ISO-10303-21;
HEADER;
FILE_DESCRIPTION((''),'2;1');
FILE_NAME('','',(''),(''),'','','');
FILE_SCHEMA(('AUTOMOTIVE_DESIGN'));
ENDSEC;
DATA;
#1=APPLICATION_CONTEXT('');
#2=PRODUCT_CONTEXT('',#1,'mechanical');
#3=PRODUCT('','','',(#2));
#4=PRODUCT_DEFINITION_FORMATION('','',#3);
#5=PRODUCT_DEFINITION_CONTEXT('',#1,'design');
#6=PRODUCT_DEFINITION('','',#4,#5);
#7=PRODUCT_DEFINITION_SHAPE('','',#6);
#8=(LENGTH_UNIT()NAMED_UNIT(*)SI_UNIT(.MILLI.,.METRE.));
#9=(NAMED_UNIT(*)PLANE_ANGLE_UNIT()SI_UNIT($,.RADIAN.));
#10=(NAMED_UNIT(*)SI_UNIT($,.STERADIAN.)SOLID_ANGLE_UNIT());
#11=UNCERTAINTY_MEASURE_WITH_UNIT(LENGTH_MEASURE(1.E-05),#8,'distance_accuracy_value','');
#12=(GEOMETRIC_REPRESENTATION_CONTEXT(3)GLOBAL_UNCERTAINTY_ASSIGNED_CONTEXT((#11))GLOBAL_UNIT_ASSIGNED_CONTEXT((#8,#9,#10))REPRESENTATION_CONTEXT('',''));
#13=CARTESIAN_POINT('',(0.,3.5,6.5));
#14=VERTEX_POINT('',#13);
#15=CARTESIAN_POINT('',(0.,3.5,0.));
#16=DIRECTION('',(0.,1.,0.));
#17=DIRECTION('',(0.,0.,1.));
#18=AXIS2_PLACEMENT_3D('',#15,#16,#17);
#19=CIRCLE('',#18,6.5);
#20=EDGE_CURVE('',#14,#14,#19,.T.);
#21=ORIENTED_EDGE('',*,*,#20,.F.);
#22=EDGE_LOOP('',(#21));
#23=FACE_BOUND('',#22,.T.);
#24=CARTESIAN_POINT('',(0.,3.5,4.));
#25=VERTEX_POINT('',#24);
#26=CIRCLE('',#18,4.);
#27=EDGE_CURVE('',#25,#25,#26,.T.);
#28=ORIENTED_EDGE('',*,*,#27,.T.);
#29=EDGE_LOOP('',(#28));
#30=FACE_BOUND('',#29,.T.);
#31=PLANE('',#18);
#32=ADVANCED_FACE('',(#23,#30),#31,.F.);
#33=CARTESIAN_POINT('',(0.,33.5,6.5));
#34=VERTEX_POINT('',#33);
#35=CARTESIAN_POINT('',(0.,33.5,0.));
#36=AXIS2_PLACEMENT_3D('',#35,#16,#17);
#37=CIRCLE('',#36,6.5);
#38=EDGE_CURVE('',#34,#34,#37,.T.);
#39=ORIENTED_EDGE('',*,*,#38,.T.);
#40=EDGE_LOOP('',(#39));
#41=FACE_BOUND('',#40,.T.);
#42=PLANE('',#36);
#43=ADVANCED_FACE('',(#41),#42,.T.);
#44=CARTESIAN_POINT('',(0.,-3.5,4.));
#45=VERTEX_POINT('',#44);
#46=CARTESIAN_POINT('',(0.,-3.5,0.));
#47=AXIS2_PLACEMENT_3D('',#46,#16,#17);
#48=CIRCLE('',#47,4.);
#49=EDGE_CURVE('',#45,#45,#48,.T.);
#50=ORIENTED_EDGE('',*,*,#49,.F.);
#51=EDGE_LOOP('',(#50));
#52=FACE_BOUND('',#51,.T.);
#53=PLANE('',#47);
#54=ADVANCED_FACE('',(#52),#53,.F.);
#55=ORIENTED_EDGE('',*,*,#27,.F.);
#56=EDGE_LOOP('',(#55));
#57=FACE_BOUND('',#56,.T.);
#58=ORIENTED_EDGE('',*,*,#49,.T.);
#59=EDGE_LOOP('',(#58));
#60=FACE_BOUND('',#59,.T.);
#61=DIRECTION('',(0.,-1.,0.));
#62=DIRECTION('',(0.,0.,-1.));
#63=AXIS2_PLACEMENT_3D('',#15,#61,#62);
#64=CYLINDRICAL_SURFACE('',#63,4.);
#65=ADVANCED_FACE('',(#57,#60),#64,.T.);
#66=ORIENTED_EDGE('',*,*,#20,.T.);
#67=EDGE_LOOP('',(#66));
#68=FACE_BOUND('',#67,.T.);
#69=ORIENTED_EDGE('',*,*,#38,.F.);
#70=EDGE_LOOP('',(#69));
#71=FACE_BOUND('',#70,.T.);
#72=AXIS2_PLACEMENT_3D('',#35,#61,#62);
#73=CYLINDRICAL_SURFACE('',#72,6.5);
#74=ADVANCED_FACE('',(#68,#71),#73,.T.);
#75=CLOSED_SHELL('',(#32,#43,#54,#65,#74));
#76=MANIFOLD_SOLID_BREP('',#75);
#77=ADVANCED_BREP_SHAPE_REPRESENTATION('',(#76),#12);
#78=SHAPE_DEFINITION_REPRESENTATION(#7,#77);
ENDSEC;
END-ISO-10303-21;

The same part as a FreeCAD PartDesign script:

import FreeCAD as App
import Part
import Sketcher

V = App.Vector

doc = App.newDocument("Part")
body = doc.addObject("PartDesign::Body", "Body")

# Sketch on XZ plane
sketch1 = body.newObject("Sketcher::SketchObject", "Sketch")
sketch1.AttachmentSupport = (doc.getObject("XZ_Plane"), [""])
sketch1.MapMode = "FlatFace"
sketch1.addGeometry(Part.Circle(V(0, 0, 0), V(0, 0, 1), 4), False)
sketch1.addConstraint([
    Sketcher.Constraint("Coincident", 0, 3, -1, 1),
    Sketcher.Constraint("Diameter", 0, 8.0),
])
pad1 = body.newObject("PartDesign::Pad", "Pad")
pad1.Profile = sketch1
pad1.Length = 7
pad1.Midplane = True

# Sketch on XZ plane
sketch2 = body.newObject("Sketcher::SketchObject", "Sketch001")
sketch2.AttachmentSupport = (doc.getObject("XZ_Plane"), [""])
sketch2.MapMode = "FlatFace"
sketch2.AttachmentOffset = App.Placement(V(0, 0, -3.5), App.Rotation())
sketch2.addGeometry(Part.Circle(V(0, 0, 0), V(0, 0, 1), 6), False)
sketch2.addConstraint([
    Sketcher.Constraint("Coincident", 0, 3, -1, 1),
    Sketcher.Constraint("Diameter", 0, 13.0),
])
pad2 = body.newObject("PartDesign::Pad", "Pad001")
pad2.Profile = sketch2
pad2.Length = 30
pad2.Reversed = True

doc.recompute()
